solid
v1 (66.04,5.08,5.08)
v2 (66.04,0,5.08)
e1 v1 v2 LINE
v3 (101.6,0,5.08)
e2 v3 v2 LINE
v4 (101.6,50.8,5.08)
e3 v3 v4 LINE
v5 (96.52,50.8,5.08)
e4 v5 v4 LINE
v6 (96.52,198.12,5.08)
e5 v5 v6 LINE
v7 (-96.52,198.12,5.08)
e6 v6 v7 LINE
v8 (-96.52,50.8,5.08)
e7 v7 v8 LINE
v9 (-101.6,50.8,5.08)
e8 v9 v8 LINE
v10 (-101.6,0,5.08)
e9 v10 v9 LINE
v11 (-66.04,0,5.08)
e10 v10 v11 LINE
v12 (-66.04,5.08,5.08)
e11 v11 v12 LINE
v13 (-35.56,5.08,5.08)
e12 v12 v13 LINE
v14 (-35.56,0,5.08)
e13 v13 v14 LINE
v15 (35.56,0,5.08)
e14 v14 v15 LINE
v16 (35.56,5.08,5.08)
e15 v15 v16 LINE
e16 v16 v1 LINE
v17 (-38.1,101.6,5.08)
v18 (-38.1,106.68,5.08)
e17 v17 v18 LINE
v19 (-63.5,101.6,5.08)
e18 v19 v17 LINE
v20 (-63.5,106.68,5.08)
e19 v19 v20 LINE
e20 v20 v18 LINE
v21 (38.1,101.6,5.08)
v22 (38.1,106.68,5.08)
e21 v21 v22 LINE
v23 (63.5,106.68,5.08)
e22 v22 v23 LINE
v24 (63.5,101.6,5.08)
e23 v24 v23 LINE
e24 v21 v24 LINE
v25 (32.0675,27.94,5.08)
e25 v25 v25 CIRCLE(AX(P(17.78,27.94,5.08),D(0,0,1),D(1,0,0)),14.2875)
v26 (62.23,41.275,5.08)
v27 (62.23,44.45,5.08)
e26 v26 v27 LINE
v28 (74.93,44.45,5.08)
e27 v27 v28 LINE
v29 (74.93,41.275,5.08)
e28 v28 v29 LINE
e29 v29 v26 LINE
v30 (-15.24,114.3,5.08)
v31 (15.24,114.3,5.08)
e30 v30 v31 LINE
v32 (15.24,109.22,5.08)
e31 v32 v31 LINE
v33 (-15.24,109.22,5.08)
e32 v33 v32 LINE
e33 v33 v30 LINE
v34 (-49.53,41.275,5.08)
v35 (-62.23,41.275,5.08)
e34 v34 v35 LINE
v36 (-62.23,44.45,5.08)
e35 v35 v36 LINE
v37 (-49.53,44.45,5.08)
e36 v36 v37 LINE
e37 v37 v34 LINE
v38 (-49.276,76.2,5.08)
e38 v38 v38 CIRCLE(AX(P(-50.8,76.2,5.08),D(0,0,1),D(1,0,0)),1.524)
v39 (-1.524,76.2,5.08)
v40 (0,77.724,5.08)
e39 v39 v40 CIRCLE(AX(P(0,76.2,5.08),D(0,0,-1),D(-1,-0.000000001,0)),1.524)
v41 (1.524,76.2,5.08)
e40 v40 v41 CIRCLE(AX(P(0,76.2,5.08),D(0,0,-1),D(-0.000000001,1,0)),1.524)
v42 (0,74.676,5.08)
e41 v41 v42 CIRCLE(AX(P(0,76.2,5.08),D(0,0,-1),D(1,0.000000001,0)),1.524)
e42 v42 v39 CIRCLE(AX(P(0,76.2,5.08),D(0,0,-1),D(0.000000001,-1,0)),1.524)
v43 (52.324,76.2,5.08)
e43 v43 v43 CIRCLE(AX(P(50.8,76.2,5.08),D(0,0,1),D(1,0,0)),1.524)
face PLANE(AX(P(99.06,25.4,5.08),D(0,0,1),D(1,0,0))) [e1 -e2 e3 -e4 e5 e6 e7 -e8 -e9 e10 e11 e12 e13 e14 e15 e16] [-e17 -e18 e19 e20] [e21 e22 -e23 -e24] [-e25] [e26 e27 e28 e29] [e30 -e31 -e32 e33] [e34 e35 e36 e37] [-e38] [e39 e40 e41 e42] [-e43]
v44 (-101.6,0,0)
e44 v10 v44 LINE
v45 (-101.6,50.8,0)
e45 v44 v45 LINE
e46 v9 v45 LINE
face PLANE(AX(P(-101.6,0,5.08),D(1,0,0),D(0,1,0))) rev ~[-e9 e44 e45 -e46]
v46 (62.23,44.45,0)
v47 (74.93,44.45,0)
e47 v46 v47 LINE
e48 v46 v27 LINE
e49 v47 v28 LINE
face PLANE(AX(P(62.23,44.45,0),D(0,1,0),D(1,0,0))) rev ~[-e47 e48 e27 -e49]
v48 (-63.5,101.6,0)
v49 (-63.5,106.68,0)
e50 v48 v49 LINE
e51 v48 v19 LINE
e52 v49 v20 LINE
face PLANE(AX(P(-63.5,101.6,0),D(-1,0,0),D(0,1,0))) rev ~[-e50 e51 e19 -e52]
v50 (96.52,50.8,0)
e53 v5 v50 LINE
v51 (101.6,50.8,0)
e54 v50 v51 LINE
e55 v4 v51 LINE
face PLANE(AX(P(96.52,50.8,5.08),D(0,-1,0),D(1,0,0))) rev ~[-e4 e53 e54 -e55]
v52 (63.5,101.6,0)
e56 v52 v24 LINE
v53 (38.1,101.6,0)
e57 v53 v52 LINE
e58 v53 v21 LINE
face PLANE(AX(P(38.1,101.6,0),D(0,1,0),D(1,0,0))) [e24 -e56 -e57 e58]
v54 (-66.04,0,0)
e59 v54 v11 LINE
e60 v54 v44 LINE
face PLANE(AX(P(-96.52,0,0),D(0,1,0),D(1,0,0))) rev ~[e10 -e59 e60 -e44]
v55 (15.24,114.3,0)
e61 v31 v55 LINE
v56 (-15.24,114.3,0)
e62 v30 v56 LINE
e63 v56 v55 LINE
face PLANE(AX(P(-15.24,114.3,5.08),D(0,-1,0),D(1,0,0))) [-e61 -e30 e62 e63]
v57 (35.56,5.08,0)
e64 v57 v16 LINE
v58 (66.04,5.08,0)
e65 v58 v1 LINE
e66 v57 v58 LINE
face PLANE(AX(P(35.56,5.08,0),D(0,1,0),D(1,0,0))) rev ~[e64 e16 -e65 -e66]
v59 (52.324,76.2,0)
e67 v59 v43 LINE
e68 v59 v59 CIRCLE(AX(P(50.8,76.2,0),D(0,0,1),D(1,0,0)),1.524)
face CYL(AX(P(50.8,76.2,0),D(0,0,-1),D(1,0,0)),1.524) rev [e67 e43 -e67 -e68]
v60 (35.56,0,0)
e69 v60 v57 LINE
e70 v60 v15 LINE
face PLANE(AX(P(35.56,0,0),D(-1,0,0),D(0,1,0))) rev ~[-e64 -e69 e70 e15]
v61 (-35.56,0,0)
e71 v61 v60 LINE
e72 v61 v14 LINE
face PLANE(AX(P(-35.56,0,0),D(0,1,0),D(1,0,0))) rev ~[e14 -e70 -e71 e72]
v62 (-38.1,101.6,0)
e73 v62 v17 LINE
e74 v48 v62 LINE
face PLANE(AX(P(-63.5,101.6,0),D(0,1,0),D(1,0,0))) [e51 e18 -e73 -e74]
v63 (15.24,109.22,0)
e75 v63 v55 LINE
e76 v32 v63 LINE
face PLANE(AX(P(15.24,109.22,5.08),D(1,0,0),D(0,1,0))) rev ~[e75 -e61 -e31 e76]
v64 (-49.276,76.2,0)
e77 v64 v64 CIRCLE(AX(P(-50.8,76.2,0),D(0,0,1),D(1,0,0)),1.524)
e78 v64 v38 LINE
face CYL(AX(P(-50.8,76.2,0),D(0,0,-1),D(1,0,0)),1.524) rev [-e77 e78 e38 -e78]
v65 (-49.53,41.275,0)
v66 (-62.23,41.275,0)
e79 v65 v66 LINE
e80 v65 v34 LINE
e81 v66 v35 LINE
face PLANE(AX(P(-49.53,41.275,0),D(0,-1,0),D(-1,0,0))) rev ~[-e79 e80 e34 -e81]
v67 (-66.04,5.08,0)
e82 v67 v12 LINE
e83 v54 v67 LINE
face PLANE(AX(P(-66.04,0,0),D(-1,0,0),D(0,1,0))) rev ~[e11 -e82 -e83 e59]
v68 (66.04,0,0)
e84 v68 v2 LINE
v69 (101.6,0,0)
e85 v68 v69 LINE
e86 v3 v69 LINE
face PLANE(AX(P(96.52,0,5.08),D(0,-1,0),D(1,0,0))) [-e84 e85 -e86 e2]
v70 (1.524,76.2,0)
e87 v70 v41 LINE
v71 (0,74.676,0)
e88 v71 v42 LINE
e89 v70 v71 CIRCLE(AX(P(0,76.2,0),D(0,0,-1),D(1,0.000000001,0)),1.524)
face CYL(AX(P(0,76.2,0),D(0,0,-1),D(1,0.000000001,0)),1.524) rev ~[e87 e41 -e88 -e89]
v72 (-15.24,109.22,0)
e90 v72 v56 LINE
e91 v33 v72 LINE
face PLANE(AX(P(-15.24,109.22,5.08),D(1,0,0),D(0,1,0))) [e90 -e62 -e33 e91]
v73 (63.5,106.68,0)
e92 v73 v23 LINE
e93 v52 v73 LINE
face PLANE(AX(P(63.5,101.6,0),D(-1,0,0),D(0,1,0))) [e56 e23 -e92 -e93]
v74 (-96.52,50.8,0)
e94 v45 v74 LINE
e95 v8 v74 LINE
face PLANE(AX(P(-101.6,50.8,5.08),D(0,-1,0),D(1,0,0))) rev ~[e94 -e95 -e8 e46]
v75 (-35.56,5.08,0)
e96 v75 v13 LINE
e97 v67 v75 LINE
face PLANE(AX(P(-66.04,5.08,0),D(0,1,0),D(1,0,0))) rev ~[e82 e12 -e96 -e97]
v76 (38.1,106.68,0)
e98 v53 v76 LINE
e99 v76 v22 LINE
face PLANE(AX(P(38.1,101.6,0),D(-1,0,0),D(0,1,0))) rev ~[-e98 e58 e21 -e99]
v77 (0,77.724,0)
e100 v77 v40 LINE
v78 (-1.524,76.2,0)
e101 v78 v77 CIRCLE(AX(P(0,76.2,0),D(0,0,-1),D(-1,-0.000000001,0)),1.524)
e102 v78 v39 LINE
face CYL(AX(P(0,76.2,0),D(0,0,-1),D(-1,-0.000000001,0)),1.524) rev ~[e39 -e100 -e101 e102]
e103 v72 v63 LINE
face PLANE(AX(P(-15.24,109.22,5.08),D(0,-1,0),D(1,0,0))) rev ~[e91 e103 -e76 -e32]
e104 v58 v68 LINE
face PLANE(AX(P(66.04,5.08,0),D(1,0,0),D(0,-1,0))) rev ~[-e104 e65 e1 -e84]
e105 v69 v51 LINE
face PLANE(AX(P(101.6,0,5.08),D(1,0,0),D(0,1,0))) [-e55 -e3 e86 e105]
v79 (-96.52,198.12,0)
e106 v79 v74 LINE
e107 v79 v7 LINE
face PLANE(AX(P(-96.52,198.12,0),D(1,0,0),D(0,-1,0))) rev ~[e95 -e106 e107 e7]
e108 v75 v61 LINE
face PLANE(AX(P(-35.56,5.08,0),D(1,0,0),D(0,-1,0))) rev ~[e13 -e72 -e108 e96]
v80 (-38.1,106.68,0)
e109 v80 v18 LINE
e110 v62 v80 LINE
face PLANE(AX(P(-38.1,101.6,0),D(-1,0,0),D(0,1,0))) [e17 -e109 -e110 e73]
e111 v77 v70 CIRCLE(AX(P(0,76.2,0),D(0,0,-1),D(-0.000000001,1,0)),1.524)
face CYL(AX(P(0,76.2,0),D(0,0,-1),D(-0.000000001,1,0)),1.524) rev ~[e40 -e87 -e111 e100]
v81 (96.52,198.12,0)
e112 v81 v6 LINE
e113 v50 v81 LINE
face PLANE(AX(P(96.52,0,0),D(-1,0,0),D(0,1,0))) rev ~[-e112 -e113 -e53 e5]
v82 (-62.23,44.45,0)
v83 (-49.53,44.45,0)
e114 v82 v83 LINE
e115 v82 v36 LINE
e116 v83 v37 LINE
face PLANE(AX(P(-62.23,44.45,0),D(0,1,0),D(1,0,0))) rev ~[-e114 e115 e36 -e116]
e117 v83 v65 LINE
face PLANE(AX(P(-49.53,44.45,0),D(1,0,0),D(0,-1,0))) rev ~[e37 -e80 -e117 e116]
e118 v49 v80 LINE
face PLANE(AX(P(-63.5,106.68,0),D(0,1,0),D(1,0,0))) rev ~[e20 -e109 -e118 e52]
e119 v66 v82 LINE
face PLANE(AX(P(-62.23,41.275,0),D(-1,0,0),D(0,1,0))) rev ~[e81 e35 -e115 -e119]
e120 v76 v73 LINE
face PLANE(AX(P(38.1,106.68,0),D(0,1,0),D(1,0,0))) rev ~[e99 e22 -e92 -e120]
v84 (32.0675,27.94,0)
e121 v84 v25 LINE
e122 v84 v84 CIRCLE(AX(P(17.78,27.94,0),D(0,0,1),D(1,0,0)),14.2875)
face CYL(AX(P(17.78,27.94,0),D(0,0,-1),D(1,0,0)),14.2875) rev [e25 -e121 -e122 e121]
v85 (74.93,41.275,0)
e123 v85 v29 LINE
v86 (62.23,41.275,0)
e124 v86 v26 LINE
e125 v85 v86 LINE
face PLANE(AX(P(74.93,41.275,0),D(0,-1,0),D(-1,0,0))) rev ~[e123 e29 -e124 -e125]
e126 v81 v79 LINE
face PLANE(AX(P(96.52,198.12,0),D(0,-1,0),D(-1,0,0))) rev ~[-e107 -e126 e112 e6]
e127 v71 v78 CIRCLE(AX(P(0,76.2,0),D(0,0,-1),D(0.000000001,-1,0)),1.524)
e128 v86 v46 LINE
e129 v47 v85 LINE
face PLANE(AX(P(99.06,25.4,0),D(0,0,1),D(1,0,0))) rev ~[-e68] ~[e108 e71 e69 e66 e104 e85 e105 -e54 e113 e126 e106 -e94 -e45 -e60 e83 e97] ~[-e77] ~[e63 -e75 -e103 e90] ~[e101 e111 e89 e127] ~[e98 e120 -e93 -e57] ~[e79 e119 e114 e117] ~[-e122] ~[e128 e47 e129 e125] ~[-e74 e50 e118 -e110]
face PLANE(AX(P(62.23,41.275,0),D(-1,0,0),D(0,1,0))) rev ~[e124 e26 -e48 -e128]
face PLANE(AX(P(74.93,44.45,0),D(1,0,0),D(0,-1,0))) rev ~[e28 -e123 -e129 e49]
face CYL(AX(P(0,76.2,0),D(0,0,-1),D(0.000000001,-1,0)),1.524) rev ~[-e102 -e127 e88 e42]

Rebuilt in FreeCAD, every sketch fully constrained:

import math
import FreeCAD as App
import Part
import Sketcher
Q = App.Units.Quantity

doc = App.newDocument("Part")
body = doc.addObject("PartDesign::Body", "Body")

# Sketch on XY plane
sketch1 = body.newObject("Sketcher::SketchObject", "Sketch")
sketch1.AttachmentSupport = (doc.getObject("XY_Plane"), [""])
sketch1.MapMode = "FlatFace"
sketch1.addGeometry([
    Part.LineSegment(App.Vector(96.5, 198.1, 0), App.Vector(-96.5, 198.1, 0)),  # 0
    Part.LineSegment(App.Vector(-96.5, 198.1, 0), App.Vector(-96.5, 0, 0)),  # 1
    Part.LineSegment(App.Vector(-96.5, 0, 0), App.Vector(-66, 0, 0)),  # 2
    Part.LineSegment(App.Vector(-66, 0, 0), App.Vector(-66, 5.1, 0)),  # 3
    Part.LineSegment(App.Vector(-66, 5.1, 0), App.Vector(-35.6, 5.1, 0)),  # 4
    Part.LineSegment(App.Vector(-35.6, 5.1, 0), App.Vector(-35.6, 0, 0)),  # 5
    Part.LineSegment(App.Vector(-35.6, 0, 0), App.Vector(35.6, 0, 0)),  # 6
    Part.LineSegment(App.Vector(35.6, 0, 0), App.Vector(35.6, 5.1, 0)),  # 7
    Part.LineSegment(App.Vector(35.6, 5.1, 0), App.Vector(66, 5.1, 0)),  # 8
    Part.LineSegment(App.Vector(66, 5.1, 0), App.Vector(66, 0, 0)),  # 9
    Part.LineSegment(App.Vector(66, 0, 0), App.Vector(96.5, 0, 0)),  # 10
    Part.LineSegment(App.Vector(96.5, 0, 0), App.Vector(96.5, 198.1, 0)),  # 11
    Part.LineSegment(App.Vector(-62.2, 41.3, 0), App.Vector(-62.2, 44.5, 0)),  # 12
    Part.LineSegment(App.Vector(-62.2, 44.5, 0), App.Vector(-49.5, 44.5, 0)),  # 13
    Part.LineSegment(App.Vector(-49.5, 44.5, 0), App.Vector(-49.5, 41.3, 0)),  # 14
    Part.LineSegment(App.Vector(-49.5, 41.3, 0), App.Vector(-62.2, 41.3, 0)),  # 15
    Part.Circle(App.Vector(17.8, 27.9, 0), App.Vector(0, 0, 1), 14.3),  # 16
    Part.LineSegment(App.Vector(62.2, 41.3, 0), App.Vector(62.2, 44.5, 0)),  # 17
    Part.LineSegment(App.Vector(62.2, 44.5, 0), App.Vector(74.9, 44.5, 0)),  # 18
    Part.LineSegment(App.Vector(74.9, 44.5, 0), App.Vector(74.9, 41.3, 0)),  # 19
    Part.LineSegment(App.Vector(74.9, 41.3, 0), App.Vector(62.2, 41.3, 0)),  # 20
    Part.Circle(App.Vector(-50.8, 76.2, 0), App.Vector(0, 0, 1), 1.5),  # 21
    Part.ArcOfCircle(Part.Circle(App.Vector(0, 76.2, 0), App.Vector(0, 0, 1), 1.5), math.radians(-90), math.radians(0)),  # 22
    Part.ArcOfCircle(Part.Circle(App.Vector(0, 76.2, 0), App.Vector(0, 0, 1), 1.5), math.radians(180), math.radians(270)),  # 23
    Part.ArcOfCircle(Part.Circle(App.Vector(0, 76.2, 0), App.Vector(0, 0, 1), 1.5), math.radians(90), math.radians(180)),  # 24
    Part.ArcOfCircle(Part.Circle(App.Vector(0, 76.2, 0), App.Vector(0, 0, 1), 1.5), math.radians(0), math.radians(90)),  # 25
    Part.LineSegment(App.Vector(-38.1, 101.6, 0), App.Vector(-63.5, 101.6, 0)),  # 26
    Part.LineSegment(App.Vector(-63.5, 101.6, 0), App.Vector(-63.5, 106.7, 0)),  # 27
    Part.LineSegment(App.Vector(-63.5, 106.7, 0), App.Vector(-38.1, 106.7, 0)),  # 28
    Part.LineSegment(App.Vector(-38.1, 106.7, 0), App.Vector(-38.1, 101.6, 0)),  # 29
    Part.Circle(App.Vector(50.8, 76.2, 0), App.Vector(0, 0, 1), 1.5),  # 30
    Part.LineSegment(App.Vector(63.5, 101.6, 0), App.Vector(38.1, 101.6, 0)),  # 31
    Part.LineSegment(App.Vector(38.1, 101.6, 0), App.Vector(38.1, 106.7, 0)),  # 32
    Part.LineSegment(App.Vector(38.1, 106.7, 0), App.Vector(63.5, 106.7, 0)),  # 33
    Part.LineSegment(App.Vector(63.5, 106.7, 0), App.Vector(63.5, 101.6, 0)),  # 34
], False)
sketch1.addConstraint([
    Sketcher.Constraint("Coincident", 0, 2, 1, 1),
    Sketcher.Constraint("Coincident", 1, 2, 2, 1),
    Sketcher.Constraint("Coincident", 2, 2, 3, 1),
    Sketcher.Constraint("Coincident", 3, 2, 4, 1),
    Sketcher.Constraint("Coincident", 4, 2, 5, 1),
    Sketcher.Constraint("Coincident", 5, 2, 6, 1),
    Sketcher.Constraint("Coincident", 6, 2, 7, 1),
    Sketcher.Constraint("Coincident", 7, 2, 8, 1),
    Sketcher.Constraint("Coincident", 8, 2, 9, 1),
    Sketcher.Constraint("Coincident", 9, 2, 10, 1),
    Sketcher.Constraint("Coincident", 10, 2, 11, 1),
    Sketcher.Constraint("Coincident", 11, 2, 0, 1),
    Sketcher.Constraint("Coincident", 12, 2, 13, 1),
    Sketcher.Constraint("Coincident", 13, 2, 14, 1),
    Sketcher.Constraint("Coincident", 14, 2, 15, 1),
    Sketcher.Constraint("Coincident", 15, 2, 12, 1),
    Sketcher.Constraint("Coincident", 17, 2, 18, 1),
    Sketcher.Constraint("Coincident", 18, 2, 19, 1),
    Sketcher.Constraint("Coincident", 19, 2, 20, 1),
    Sketcher.Constraint("Coincident", 20, 2, 17, 1),
    Sketcher.Constraint("Tangent", 22, 1, 23, 2),
    Sketcher.Constraint("Tangent", 23, 1, 24, 2),
    Sketcher.Constraint("Tangent", 24, 1, 25, 2),
    Sketcher.Constraint("Tangent", 25, 1, 22, 2),
    Sketcher.Constraint("Coincident", 26, 2, 27, 1),
    Sketcher.Constraint("Coincident", 27, 2, 28, 1),
    Sketcher.Constraint("Coincident", 28, 2, 29, 1),
    Sketcher.Constraint("Coincident", 29, 2, 26, 1),
    Sketcher.Constraint("Coincident", 31, 2, 32, 1),
    Sketcher.Constraint("Coincident", 32, 2, 33, 1),
    Sketcher.Constraint("Coincident", 33, 2, 34, 1),
    Sketcher.Constraint("Coincident", 34, 2, 31, 1),
    Sketcher.Constraint("Horizontal", 0),
    Sketcher.Constraint("Vertical", 1),
    Sketcher.Constraint("Horizontal", 2),
    Sketcher.Constraint("Vertical", 3),
    Sketcher.Constraint("Horizontal", 4),
    Sketcher.Constraint("Vertical", 5),
    Sketcher.Constraint("Horizontal", 6),
    Sketcher.Constraint("Vertical", 7),
    Sketcher.Constraint("Horizontal", 8),
    Sketcher.Constraint("Vertical", 9),
    Sketcher.Constraint("Horizontal", 10),
    Sketcher.Constraint("Vertical", 11),
    Sketcher.Constraint("Vertical", 12),
    Sketcher.Constraint("Horizontal", 13),
    Sketcher.Constraint("Vertical", 14),
    Sketcher.Constraint("Horizontal", 15),
    Sketcher.Constraint("Vertical", 17),
    Sketcher.Constraint("Horizontal", 18),
    Sketcher.Constraint("Vertical", 19),
    Sketcher.Constraint("Horizontal", 20),
    Sketcher.Constraint("Horizontal", 26),
    Sketcher.Constraint("Vertical", 27),
    Sketcher.Constraint("Horizontal", 28),
    Sketcher.Constraint("Vertical", 29),
    Sketcher.Constraint("Horizontal", 31),
    Sketcher.Constraint("Vertical", 32),
    Sketcher.Constraint("Horizontal", 33),
    Sketcher.Constraint("Vertical", 34),
    Sketcher.Constraint("Equal", 21, 22),
    Sketcher.Constraint("Equal", 22, 23),
    Sketcher.Constraint("Equal", 25, 30),
    Sketcher.Constraint("Symmetric", 5, 2, 6, 2, -1, 1),
    Sketcher.Constraint("Symmetric", 2, 2, 9, 2, -1, 1),
    Sketcher.Constraint("Symmetric", 21, 3, 30, 3, -2),
    Sketcher.Constraint("Symmetric", 1, 2, 10, 2, -2),
    Sketcher.Constraint("Symmetric", 12, 2, 17, 2, -2),
    Sketcher.Constraint("Symmetric", 23, 1, 25, 1, -2),
    Sketcher.Constraint("Symmetric", 29, 2, 31, 2, -2),
    Sketcher.Constraint("Symmetric", 27, 2, 33, 2, -2),
    Sketcher.Constraint("PointOnObject", 22, 1, -2),
    Sketcher.Constraint("PointOnObject", 24, 1, -2),
    Sketcher.Constraint("Horizontal", 21, 3, 22, 3),
    Sketcher.Constraint("Horizontal", 4, 2, 7, 2),
    Sketcher.Constraint("Horizontal", 15, 2, 19, 2),
    Sketcher.Constraint("Horizontal", 30, 3, 23, 1),
    Sketcher.Constraint("Equal", 2, 4),
    Sketcher.Constraint("Equal", 15, 18),
    Sketcher.Constraint("Equal", 9, 27),
    Sketcher.Constraint("Diameter", 21, Q("0.12 in")),
    Sketcher.Constraint("DistanceX", 26, 2, 26, 1, Q("1 in")),
    Sketcher.Constraint("Diameter", 16, Q("1.125 in")),
    Sketcher.Constraint("DistanceX", 0, 2, 0, 1, Q("7.6 in")),
    Sketcher.Constraint("DistanceX", 2, 1, 2, 2, Q("1.2 in")),
    Sketcher.Constraint("DistanceX", 13, 1, 13, 2, Q("0.5 in")),
    Sketcher.Constraint("DistanceY", 1, 2, 1, 1, Q("7.8 in")),
    Sketcher.Constraint("DistanceY", 3, 1, 3, 2, Q("0.2 in")),
    Sketcher.Constraint("DistanceX", 21, 3, -1, 1, Q("2 in")),
    Sketcher.Constraint("DistanceY", -1, 1, 21, 3, Q("3 in")),
    Sketcher.Constraint("DistanceY", -1, 1, 26, 2, Q("4 in")),
    Sketcher.Constraint("DistanceX", -1, 1, 16, 3, Q("0.7 in")),
    Sketcher.Constraint("DistanceY", -1, 1, 16, 3, Q("1.1 in")),
    Sketcher.Constraint("DistanceX", 26, 2, -1, 1, Q("2.5 in")),
    Sketcher.Constraint("DistanceY", 12, 1, 12, 2, Q("0.125 in")),
    Sketcher.Constraint("DistanceX", 12, 2, -1, 1, Q("2.45 in")),
    Sketcher.Constraint("DistanceY", -1, 1, 12, 2, Q("1.75 in")),
])
pad1 = body.newObject("PartDesign::Pad", "Pad")
pad1.Profile = sketch1
pad1.Length = Q("0.2 in")

# Sketch on XY plane
sketch2 = body.newObject("Sketcher::SketchObject", "Sketch001")
sketch2.AttachmentSupport = (doc.getObject("XY_Plane"), [""])
sketch2.MapMode = "FlatFace"
sketch2.AttachmentOffset = App.Placement(App.Vector(0, 0, 0.2 * 25.4), App.Rotation())
sketch2.addGeometry([
    Part.LineSegment(App.Vector(97, 51, 0), App.Vector(97, 0, 0)),  # 0
    Part.LineSegment(App.Vector(97, 0, 0), App.Vector(102, 0, 0)),  # 1
    Part.LineSegment(App.Vector(102, 0, 0), App.Vector(102, 51, 0)),  # 2
    Part.LineSegment(App.Vector(102, 51, 0), App.Vector(97, 51, 0)),  # 3
    Part.LineSegment(App.Vector(-102, 51, 0), App.Vector(-102, 0, 0)),  # 4
    Part.LineSegment(App.Vector(-102, 0, 0), App.Vector(-97, 0, 0)),  # 5
    Part.LineSegment(App.Vector(-97, 0, 0), App.Vector(-97, 51, 0)),  # 6
    Part.LineSegment(App.Vector(-97, 51, 0), App.Vector(-102, 51, 0)),  # 7
], False)
sketch2.addConstraint([
    Sketcher.Constraint("Coincident", 0, 2, 1, 1),
    Sketcher.Constraint("Coincident", 1, 2, 2, 1),
    Sketcher.Constraint("Coincident", 2, 2, 3, 1),
    Sketcher.Constraint("Coincident", 3, 2, 0, 1),
    Sketcher.Constraint("Coincident", 4, 2, 5, 1),
    Sketcher.Constraint("Coincident", 5, 2, 6, 1),
    Sketcher.Constraint("Coincident", 6, 2, 7, 1),
    Sketcher.Constraint("Coincident", 7, 2, 4, 1),
    Sketcher.Constraint("Vertical", 0),
    Sketcher.Constraint("Horizontal", 1),
    Sketcher.Constraint("Vertical", 2),
    Sketcher.Constraint("Horizontal", 3),
    Sketcher.Constraint("Vertical", 4),
    Sketcher.Constraint("Horizontal", 5),
    Sketcher.Constraint("Vertical", 6),
    Sketcher.Constraint("Horizontal", 7),
    Sketcher.Constraint("Symmetric", 1, 2, 4, 2, -1, 1),
    Sketcher.Constraint("Symmetric", 0, 2, 5, 2, -2),
    Sketcher.Constraint("Horizontal", 3, 2, 6, 2),
    Sketcher.Constraint("DistanceY", 0, 2, 0, 1, Q("2 in")),
    Sketcher.Constraint("DistanceX", 1, 1, 1, 2, Q("0.2 in")),
    Sketcher.Constraint("DistanceX", -1, 1, 1, 2, Q("4 in")),
])
pad2 = body.newObject("PartDesign::Pad", "Pad001")
pad2.Profile = sketch2
pad2.Length = Q("0.2 in")
pad2.Reversed = True

# Sketch on XY plane
sketch3 = body.newObject("Sketcher::SketchObject", "Sketch002")
sketch3.AttachmentSupport = (doc.getObject("XY_Plane"), [""])
sketch3.MapMode = "FlatFace"
sketch3.AttachmentOffset = App.Placement(App.Vector(0, 0, 0.2 * 25.4), App.Rotation())
sketch3.addGeometry([
    Part.LineSegment(App.Vector(-15, 114, 0), App.Vector(-15, 109, 0)),
    Part.LineSegment(App.Vector(-15, 109, 0), App.Vector(15, 109, 0)),
    Part.LineSegment(App.Vector(15, 109, 0), App.Vector(15, 114, 0)),
    Part.LineSegment(App.Vector(15, 114, 0), App.Vector(-15, 114, 0)),
], False)
sketch3.addConstraint([
    Sketcher.Constraint("Coincident", 0, 2, 1, 1),
    Sketcher.Constraint("Coincident", 1, 2, 2, 1),
    Sketcher.Constraint("Coincident", 2, 2, 3, 1),
    Sketcher.Constraint("Coincident", 3, 2, 0, 1),
    Sketcher.Constraint("Vertical", 0),
    Sketcher.Constraint("Horizontal", 1),
    Sketcher.Constraint("Vertical", 2),
    Sketcher.Constraint("Horizontal", 3),
    Sketcher.Constraint("DistanceX", 1, 1, 1, 2, Q("1.2 in")),
    Sketcher.Constraint("DistanceY", 0, 2, 0, 1, Q("0.2 in")),
    Sketcher.Constraint("DistanceX", 0, 2, -1, 1, Q("0.6 in")),
    Sketcher.Constraint("DistanceY", -1, 1, 0, 2, Q("4.3 in")),
])
pocket1 = body.newObject("PartDesign::Pocket", "Pocket")
pocket1.Profile = sketch3
pocket1.Length = Q("0.2 in")

doc.recompute()
